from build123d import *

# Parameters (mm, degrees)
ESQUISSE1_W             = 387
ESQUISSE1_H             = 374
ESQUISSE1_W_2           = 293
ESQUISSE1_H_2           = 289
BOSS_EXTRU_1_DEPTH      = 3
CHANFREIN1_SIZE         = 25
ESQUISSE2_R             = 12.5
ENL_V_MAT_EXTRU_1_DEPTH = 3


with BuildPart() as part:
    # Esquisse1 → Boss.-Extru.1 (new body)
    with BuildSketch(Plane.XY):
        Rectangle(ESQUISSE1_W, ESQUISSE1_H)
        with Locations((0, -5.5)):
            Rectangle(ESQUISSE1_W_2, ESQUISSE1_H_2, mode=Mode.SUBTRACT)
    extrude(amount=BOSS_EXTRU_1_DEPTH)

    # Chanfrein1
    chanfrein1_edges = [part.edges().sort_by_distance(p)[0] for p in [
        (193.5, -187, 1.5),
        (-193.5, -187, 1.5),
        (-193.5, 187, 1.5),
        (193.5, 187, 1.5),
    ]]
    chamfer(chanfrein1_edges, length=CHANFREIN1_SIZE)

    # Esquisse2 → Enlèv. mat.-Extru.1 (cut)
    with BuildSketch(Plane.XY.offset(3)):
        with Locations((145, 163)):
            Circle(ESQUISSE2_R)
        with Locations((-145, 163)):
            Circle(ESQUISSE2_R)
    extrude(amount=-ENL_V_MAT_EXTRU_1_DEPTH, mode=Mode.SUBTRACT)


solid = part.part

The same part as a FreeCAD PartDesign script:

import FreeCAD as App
import Part
import Sketcher
Q = App.Units.Quantity


def edges_at(feature, points):
    """Names of the edges that pass closest to the given points."""
    edges = feature.Shape.Edges
    near = lambda p: min(range(len(edges)), key=lambda i: edges[i].distToShape(Part.Vertex(*p))[0])
    return sorted({f"Edge{near(p) + 1}" for p in points})


def add_polygon(sketch, points):
    """Adds a closed chain of lines whose ends are joined by coincident constraints."""
    first, n = sketch.GeometryCount, len(points)
    for a, b in zip(points, points[1:] + points[:1]):
        sketch.addGeometry(Part.LineSegment(App.Vector(*a, 0), App.Vector(*b, 0)), False)
    for i in range(n):
        sketch.addConstraint(Sketcher.Constraint("Coincident", first + i, 2, first + (i + 1) % n, 1))

doc = App.newDocument("Part")
body = doc.addObject("PartDesign::Body", "Body")

# Sketch on XY plane
sketch1 = body.newObject("Sketcher::SketchObject", "Sketch")
sketch1.AttachmentSupport = (doc.getObject("XY_Plane"), [""])
sketch1.MapMode = "FlatFace"
add_polygon(sketch1, [(-194, 187), (-194, -187), (194, -187), (194, 187)])  # lines 0-3
add_polygon(sketch1, [(146, -150), (-146, -150), (-146, 139), (146, 139)])  # lines 4-7
sketch1.addConstraint([
    Sketcher.Constraint("Vertical", 0),
    Sketcher.Constraint("Horizontal", 1),
    Sketcher.Constraint("Vertical", 2),
    Sketcher.Constraint("Horizontal", 3),
    Sketcher.Constraint("Horizontal", 4),
    Sketcher.Constraint("Vertical", 5),
    Sketcher.Constraint("Horizontal", 6),
    Sketcher.Constraint("Vertical", 7),
    Sketcher.Constraint("Symmetric", 0, 2, 2, 2, -1, 1),
    Sketcher.Constraint("DistanceX", 1, 1, 1, 2, Q("387 mm")),
    Sketcher.Constraint("DistanceX", 4, 2, 4, 1, Q("293 mm")),
    Sketcher.Constraint("DistanceY", 0, 2, 0, 1, Q("374 mm")),
    Sketcher.Constraint("DistanceY", 5, 1, 5, 2, Q("289 mm")),
    Sketcher.Constraint("DistanceY", 4, 2, -1, 1, Q("150 mm")),
    Sketcher.Constraint("DistanceX", 0, 2, 4, 2, Q("47 mm")),
])
pad1 = body.newObject("PartDesign::Pad", "Pad")
pad1.Profile = sketch1
pad1.Length = 3
doc.recompute()

chamfer = body.newObject("PartDesign::Chamfer", "Chamfer")
chamfer.Base = (pad1, edges_at(pad1, [
    (193.5, -187, 1.5),
    (-193.5, -187, 1.5),
    (-193.5, 187, 1.5),
    (193.5, 187, 1.5),
]))
chamfer.Size = 25

# Sketch on XY plane
sketch2 = body.newObject("Sketcher::SketchObject", "Sketch001")
sketch2.AttachmentSupport = (doc.getObject("XY_Plane"), [""])
sketch2.MapMode = "FlatFace"
sketch2.AttachmentOffset = App.Placement(App.Vector(0, 0, 3), App.Rotation())
sketch2.addGeometry([
    Part.Circle(App.Vector(145, 163, 0), App.Vector(0, 0, 1), 12),
    Part.Circle(App.Vector(-145, 163, 0), App.Vector(0, 0, 1), 12),
], False)
sketch2.addConstraint([
    Sketcher.Constraint("Equal", 0, 1),
    Sketcher.Constraint("Symmetric", 0, 3, 1, 3, -2),
    Sketcher.Constraint("Diameter", 0, Q("25 mm")),
    Sketcher.Constraint("DistanceX", -1, 1, 0, 3, Q("145 mm")),
    Sketcher.Constraint("DistanceY", -1, 1, 0, 3, Q("163 mm")),
])
pocket1 = body.newObject("PartDesign::Pocket", "Pocket")
pocket1.Profile = sketch2
pocket1.Length = 3

doc.recompute()
